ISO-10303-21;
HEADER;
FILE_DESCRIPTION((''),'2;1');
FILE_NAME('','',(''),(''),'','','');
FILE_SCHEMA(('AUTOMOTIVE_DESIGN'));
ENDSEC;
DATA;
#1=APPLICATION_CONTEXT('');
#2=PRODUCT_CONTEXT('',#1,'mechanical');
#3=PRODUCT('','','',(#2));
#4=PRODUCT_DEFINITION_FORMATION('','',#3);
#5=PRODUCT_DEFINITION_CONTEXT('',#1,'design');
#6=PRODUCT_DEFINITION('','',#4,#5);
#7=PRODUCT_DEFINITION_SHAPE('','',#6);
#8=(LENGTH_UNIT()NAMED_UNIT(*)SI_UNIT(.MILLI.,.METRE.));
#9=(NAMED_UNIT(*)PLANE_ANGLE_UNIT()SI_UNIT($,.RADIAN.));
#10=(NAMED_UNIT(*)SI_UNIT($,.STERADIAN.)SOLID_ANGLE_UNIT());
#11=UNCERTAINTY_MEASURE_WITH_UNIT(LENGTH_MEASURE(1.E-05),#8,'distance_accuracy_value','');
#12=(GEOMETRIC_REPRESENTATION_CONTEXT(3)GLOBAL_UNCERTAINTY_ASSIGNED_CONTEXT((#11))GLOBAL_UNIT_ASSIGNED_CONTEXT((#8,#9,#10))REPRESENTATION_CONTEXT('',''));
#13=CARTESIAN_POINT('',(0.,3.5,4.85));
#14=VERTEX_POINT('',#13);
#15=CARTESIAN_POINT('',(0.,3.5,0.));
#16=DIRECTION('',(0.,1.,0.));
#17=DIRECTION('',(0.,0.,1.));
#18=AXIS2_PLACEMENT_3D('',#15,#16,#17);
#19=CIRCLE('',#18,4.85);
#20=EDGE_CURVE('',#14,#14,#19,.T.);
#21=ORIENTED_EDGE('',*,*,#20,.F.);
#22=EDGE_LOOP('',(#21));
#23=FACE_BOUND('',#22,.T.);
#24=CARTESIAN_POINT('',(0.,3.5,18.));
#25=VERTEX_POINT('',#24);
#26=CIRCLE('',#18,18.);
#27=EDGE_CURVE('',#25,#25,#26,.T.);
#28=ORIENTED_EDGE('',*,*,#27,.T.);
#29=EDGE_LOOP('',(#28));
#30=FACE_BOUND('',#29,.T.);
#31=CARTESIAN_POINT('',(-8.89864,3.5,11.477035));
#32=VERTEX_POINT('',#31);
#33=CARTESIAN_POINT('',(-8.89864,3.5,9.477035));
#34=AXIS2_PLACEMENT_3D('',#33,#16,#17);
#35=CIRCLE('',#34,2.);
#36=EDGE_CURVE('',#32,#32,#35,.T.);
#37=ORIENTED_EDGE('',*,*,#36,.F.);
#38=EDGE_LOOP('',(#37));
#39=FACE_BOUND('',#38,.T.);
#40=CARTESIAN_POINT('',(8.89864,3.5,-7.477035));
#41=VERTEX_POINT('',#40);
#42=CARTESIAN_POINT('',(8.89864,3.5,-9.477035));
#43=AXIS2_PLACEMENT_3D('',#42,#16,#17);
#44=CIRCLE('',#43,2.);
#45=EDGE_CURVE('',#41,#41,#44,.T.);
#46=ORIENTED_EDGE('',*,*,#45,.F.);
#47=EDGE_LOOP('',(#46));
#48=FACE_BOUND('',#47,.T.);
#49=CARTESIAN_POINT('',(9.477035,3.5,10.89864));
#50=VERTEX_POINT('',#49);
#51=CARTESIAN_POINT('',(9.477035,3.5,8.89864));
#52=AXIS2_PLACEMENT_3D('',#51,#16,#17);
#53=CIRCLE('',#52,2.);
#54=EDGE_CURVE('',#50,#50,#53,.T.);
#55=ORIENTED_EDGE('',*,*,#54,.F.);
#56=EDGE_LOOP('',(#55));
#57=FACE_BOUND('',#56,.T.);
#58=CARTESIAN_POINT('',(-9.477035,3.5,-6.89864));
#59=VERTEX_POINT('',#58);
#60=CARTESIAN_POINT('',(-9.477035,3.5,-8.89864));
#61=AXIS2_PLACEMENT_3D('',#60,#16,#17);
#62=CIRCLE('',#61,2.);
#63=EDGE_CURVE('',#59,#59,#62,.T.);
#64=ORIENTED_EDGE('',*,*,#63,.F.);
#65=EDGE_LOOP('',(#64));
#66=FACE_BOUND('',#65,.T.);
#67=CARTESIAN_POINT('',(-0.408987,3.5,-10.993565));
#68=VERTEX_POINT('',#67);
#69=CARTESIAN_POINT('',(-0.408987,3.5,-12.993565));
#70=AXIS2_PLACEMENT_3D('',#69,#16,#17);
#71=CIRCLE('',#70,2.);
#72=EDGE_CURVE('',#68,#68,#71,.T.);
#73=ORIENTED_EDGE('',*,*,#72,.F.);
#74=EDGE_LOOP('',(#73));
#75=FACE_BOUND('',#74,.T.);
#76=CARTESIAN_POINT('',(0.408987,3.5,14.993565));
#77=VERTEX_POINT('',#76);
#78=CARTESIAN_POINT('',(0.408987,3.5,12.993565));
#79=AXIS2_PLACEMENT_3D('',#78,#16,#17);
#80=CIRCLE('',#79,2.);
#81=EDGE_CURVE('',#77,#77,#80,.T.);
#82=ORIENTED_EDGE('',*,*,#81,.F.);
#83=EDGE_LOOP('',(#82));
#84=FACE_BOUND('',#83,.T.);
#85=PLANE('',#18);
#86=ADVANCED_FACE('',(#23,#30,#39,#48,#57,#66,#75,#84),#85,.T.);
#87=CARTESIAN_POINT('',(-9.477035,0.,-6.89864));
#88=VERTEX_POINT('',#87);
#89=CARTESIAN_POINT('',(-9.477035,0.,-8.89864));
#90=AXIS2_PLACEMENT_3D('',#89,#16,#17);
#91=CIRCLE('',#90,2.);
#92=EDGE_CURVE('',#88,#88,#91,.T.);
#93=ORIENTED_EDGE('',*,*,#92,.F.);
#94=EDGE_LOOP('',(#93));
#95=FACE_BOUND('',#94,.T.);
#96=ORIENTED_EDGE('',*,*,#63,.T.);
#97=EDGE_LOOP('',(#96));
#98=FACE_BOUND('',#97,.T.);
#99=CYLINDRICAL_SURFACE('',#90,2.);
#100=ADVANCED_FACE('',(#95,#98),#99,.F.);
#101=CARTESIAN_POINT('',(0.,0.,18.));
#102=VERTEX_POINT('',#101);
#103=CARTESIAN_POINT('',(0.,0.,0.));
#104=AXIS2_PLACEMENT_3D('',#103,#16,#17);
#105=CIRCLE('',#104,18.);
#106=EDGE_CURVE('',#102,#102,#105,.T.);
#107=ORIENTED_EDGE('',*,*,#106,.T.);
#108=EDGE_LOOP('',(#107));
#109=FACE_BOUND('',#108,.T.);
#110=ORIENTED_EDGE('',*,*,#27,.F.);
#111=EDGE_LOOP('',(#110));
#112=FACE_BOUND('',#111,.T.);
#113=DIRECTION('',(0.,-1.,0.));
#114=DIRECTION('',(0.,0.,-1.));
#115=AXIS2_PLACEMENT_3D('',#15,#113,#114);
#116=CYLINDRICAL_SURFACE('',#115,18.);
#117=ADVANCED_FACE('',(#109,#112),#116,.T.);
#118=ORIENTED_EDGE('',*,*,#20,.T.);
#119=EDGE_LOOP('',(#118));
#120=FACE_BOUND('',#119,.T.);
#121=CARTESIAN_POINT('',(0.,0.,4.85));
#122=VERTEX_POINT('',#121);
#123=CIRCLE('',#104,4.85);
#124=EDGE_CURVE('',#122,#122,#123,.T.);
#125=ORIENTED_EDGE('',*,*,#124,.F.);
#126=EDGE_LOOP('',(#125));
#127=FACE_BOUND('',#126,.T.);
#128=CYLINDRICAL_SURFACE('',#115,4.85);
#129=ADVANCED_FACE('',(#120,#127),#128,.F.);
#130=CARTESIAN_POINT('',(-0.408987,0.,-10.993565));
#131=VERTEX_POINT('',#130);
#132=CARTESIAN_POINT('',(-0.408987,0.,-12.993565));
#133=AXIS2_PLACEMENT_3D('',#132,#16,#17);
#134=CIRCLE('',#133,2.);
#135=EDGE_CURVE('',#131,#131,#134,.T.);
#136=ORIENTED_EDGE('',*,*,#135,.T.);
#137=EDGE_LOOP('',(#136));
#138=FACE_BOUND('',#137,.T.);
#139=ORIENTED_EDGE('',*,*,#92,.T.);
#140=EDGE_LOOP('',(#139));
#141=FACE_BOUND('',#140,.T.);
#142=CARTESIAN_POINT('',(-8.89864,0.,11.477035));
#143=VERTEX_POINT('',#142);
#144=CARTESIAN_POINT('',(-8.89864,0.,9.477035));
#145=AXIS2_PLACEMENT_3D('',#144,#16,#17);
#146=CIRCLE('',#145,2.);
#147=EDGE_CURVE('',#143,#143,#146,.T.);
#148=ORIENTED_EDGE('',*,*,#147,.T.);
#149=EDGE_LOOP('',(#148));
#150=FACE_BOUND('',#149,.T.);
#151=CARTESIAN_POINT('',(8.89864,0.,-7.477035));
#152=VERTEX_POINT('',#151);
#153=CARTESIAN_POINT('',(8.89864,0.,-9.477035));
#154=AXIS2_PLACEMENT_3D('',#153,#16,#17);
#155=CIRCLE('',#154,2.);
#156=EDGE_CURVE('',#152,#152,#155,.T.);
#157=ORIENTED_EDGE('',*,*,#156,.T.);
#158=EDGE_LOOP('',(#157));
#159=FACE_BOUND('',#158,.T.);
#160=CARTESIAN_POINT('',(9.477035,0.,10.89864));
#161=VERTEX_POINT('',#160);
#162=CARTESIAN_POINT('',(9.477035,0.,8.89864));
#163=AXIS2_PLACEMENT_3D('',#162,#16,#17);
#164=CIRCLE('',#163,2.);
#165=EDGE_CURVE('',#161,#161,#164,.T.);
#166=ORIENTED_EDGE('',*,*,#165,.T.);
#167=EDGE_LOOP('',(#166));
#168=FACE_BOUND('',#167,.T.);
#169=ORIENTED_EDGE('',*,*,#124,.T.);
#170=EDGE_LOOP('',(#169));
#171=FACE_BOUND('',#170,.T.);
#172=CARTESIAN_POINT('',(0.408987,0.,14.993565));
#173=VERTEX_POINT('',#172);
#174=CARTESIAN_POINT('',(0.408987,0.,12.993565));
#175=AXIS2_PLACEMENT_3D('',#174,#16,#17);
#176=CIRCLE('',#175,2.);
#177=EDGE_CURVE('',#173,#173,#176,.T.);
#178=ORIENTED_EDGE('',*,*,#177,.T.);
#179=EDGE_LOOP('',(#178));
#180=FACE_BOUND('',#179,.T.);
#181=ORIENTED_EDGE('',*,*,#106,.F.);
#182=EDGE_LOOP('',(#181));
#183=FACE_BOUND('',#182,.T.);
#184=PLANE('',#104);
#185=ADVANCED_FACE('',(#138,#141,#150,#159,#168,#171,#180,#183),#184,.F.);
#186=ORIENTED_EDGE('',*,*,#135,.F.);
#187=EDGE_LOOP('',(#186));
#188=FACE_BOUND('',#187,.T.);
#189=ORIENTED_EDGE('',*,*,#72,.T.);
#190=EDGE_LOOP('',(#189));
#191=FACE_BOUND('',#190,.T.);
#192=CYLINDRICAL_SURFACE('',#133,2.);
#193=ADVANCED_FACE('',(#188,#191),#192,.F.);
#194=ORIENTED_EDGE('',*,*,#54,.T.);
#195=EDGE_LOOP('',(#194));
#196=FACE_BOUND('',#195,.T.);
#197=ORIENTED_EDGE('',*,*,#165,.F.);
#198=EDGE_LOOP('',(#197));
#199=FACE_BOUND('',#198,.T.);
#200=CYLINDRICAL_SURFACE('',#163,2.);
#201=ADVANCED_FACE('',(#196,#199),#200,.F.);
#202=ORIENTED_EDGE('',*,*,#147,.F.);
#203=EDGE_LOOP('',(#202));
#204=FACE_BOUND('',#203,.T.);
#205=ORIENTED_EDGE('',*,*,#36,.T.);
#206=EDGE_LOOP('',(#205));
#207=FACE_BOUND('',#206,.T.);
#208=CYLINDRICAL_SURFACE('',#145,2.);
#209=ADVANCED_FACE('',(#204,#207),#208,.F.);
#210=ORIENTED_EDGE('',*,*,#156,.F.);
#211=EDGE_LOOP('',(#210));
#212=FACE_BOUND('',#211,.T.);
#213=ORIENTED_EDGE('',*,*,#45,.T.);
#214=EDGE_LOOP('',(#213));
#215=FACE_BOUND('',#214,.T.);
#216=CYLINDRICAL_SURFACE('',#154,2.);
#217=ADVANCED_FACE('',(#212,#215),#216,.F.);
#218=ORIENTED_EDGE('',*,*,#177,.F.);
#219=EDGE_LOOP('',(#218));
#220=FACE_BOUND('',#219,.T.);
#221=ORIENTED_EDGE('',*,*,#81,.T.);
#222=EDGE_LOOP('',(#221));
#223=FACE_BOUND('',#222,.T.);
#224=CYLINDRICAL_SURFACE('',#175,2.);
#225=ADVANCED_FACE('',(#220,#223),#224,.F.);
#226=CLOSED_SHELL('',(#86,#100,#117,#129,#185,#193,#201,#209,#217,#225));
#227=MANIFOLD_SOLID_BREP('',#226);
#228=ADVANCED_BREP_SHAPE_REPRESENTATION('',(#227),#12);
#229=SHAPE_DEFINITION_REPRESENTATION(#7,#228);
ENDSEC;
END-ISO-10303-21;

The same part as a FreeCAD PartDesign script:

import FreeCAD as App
import Part
import Sketcher
from FreeCAD import Vector
Q = App.Units.Quantity

doc = App.newDocument("Part")
params = doc.addObject("Spreadsheet::Sheet", "Params")
for row, (alias, value) in enumerate([
    ("sketch1_diameter", "36 mm"),
    ("sketch1_diameter2", "9.7 mm"),
    ("pad1_length", "3.5 mm"),
    ("sketch2_diameter", "4 mm"),
], start=1):
    params.set(f"A{row}", alias)
    params.set(f"B{row}", "=" + value)
    params.setAlias(f"B{row}", alias)

body = doc.addObject("PartDesign::Body", "Body")

# Sketch on XZ plane
sketch1 = body.newObject("Sketcher::SketchObject", "Sketch")
sketch1.AttachmentSupport = (doc.getObject("XZ_Plane"), [""])
sketch1.MapMode = "FlatFace"
sketch1.addGeometry([
    Part.Circle(Vector(0, 0, 0), Vector(0, 0, 1), 18),
    Part.Circle(Vector(0, 0, 0), Vector(0, 0, 1), 4.8),
], False)
sketch1.addConstraint([
    Sketcher.Constraint("Coincident", 0, 3, -1, 1),
    Sketcher.Constraint("Coincident", 1, 3, -1, 1),
    Sketcher.Constraint("Diameter", 0, Q("36 mm")),
    Sketcher.Constraint("Diameter", 1, Q("9.7 mm")),
])
sketch1.setExpression("Constraints[2]", "Params.sketch1_diameter")
sketch1.setExpression("Constraints[3]", "Params.sketch1_diameter2")
pad1 = body.newObject("PartDesign::Pad", "Pad")
pad1.Profile = sketch1
pad1.setExpression("Length", "Params.pad1_length")
pad1.Reversed = True

# Sketch on XZ plane
sketch2 = body.newObject("Sketcher::SketchObject", "Sketch001")
sketch2.AttachmentSupport = (doc.getObject("XZ_Plane"), [""])
sketch2.MapMode = "FlatFace"
sketch2.AttachmentOffset = App.Placement(Vector(0, 0, -3.5), App.Rotation())
sketch2.addGeometry([
    Part.Circle(Vector(-0.4, -13, 0), Vector(0, 0, 1), 2),  # 0
    Part.Circle(Vector(-9.5, -8.9, 0), Vector(0, 0, 1), 2),  # 1
    Part.Circle(Vector(8.9, -9.5, 0), Vector(0, 0, 1), 2),  # 2
    Part.Circle(Vector(9.5, 8.9, 0), Vector(0, 0, 1), 2),  # 3
    Part.Circle(Vector(0.4, 13, 0), Vector(0, 0, 1), 2),  # 4
    Part.Circle(Vector(-8.9, 9.5, 0), Vector(0, 0, 1), 2),  # 5
], False)
sketch2.addConstraint([
    Sketcher.Constraint("Equal", 0, 1),
    Sketcher.Constraint("Equal", 1, 2),
    Sketcher.Constraint("Equal", 2, 3),
    Sketcher.Constraint("Equal", 3, 4),
    Sketcher.Constraint("Equal", 4, 5),
    Sketcher.Constraint("Symmetric", 1, 3, 3, 3, -1, 1),
    Sketcher.Constraint("Symmetric", 0, 3, 4, 3, -1, 1),
    Sketcher.Constraint("Symmetric", 2, 3, 5, 3, -1, 1),
    Sketcher.Constraint("Diameter", 0, Q("4 mm")),
    Sketcher.Constraint("DistanceY", 2, 3, 4, 3, Q("22.4706 mm")),
    Sketcher.Constraint("DistanceY", 1, 3, -1, 1, Q("8.89864 mm")),
    Sketcher.Constraint("DistanceX", -1, 1, 2, 3, Q("8.89864 mm")),
    Sketcher.Constraint("DistanceX", 1, 3, 0, 3, Q("9.068048 mm")),
    Sketcher.Constraint("DistanceY", 0, 3, 2, 3, Q("3.516529 mm")),
    Sketcher.Constraint("DistanceX", 1, 3, 3, 3, Q("18.954071 mm")),
])
sketch2.setExpression("Constraints[8]", "Params.sketch2_diameter")
pocket1 = body.newObject("PartDesign::Pocket", "Pocket")
pocket1.Profile = sketch2
pocket1.Type = "ThroughAll"
pocket1.Reversed = True

doc.recompute()
